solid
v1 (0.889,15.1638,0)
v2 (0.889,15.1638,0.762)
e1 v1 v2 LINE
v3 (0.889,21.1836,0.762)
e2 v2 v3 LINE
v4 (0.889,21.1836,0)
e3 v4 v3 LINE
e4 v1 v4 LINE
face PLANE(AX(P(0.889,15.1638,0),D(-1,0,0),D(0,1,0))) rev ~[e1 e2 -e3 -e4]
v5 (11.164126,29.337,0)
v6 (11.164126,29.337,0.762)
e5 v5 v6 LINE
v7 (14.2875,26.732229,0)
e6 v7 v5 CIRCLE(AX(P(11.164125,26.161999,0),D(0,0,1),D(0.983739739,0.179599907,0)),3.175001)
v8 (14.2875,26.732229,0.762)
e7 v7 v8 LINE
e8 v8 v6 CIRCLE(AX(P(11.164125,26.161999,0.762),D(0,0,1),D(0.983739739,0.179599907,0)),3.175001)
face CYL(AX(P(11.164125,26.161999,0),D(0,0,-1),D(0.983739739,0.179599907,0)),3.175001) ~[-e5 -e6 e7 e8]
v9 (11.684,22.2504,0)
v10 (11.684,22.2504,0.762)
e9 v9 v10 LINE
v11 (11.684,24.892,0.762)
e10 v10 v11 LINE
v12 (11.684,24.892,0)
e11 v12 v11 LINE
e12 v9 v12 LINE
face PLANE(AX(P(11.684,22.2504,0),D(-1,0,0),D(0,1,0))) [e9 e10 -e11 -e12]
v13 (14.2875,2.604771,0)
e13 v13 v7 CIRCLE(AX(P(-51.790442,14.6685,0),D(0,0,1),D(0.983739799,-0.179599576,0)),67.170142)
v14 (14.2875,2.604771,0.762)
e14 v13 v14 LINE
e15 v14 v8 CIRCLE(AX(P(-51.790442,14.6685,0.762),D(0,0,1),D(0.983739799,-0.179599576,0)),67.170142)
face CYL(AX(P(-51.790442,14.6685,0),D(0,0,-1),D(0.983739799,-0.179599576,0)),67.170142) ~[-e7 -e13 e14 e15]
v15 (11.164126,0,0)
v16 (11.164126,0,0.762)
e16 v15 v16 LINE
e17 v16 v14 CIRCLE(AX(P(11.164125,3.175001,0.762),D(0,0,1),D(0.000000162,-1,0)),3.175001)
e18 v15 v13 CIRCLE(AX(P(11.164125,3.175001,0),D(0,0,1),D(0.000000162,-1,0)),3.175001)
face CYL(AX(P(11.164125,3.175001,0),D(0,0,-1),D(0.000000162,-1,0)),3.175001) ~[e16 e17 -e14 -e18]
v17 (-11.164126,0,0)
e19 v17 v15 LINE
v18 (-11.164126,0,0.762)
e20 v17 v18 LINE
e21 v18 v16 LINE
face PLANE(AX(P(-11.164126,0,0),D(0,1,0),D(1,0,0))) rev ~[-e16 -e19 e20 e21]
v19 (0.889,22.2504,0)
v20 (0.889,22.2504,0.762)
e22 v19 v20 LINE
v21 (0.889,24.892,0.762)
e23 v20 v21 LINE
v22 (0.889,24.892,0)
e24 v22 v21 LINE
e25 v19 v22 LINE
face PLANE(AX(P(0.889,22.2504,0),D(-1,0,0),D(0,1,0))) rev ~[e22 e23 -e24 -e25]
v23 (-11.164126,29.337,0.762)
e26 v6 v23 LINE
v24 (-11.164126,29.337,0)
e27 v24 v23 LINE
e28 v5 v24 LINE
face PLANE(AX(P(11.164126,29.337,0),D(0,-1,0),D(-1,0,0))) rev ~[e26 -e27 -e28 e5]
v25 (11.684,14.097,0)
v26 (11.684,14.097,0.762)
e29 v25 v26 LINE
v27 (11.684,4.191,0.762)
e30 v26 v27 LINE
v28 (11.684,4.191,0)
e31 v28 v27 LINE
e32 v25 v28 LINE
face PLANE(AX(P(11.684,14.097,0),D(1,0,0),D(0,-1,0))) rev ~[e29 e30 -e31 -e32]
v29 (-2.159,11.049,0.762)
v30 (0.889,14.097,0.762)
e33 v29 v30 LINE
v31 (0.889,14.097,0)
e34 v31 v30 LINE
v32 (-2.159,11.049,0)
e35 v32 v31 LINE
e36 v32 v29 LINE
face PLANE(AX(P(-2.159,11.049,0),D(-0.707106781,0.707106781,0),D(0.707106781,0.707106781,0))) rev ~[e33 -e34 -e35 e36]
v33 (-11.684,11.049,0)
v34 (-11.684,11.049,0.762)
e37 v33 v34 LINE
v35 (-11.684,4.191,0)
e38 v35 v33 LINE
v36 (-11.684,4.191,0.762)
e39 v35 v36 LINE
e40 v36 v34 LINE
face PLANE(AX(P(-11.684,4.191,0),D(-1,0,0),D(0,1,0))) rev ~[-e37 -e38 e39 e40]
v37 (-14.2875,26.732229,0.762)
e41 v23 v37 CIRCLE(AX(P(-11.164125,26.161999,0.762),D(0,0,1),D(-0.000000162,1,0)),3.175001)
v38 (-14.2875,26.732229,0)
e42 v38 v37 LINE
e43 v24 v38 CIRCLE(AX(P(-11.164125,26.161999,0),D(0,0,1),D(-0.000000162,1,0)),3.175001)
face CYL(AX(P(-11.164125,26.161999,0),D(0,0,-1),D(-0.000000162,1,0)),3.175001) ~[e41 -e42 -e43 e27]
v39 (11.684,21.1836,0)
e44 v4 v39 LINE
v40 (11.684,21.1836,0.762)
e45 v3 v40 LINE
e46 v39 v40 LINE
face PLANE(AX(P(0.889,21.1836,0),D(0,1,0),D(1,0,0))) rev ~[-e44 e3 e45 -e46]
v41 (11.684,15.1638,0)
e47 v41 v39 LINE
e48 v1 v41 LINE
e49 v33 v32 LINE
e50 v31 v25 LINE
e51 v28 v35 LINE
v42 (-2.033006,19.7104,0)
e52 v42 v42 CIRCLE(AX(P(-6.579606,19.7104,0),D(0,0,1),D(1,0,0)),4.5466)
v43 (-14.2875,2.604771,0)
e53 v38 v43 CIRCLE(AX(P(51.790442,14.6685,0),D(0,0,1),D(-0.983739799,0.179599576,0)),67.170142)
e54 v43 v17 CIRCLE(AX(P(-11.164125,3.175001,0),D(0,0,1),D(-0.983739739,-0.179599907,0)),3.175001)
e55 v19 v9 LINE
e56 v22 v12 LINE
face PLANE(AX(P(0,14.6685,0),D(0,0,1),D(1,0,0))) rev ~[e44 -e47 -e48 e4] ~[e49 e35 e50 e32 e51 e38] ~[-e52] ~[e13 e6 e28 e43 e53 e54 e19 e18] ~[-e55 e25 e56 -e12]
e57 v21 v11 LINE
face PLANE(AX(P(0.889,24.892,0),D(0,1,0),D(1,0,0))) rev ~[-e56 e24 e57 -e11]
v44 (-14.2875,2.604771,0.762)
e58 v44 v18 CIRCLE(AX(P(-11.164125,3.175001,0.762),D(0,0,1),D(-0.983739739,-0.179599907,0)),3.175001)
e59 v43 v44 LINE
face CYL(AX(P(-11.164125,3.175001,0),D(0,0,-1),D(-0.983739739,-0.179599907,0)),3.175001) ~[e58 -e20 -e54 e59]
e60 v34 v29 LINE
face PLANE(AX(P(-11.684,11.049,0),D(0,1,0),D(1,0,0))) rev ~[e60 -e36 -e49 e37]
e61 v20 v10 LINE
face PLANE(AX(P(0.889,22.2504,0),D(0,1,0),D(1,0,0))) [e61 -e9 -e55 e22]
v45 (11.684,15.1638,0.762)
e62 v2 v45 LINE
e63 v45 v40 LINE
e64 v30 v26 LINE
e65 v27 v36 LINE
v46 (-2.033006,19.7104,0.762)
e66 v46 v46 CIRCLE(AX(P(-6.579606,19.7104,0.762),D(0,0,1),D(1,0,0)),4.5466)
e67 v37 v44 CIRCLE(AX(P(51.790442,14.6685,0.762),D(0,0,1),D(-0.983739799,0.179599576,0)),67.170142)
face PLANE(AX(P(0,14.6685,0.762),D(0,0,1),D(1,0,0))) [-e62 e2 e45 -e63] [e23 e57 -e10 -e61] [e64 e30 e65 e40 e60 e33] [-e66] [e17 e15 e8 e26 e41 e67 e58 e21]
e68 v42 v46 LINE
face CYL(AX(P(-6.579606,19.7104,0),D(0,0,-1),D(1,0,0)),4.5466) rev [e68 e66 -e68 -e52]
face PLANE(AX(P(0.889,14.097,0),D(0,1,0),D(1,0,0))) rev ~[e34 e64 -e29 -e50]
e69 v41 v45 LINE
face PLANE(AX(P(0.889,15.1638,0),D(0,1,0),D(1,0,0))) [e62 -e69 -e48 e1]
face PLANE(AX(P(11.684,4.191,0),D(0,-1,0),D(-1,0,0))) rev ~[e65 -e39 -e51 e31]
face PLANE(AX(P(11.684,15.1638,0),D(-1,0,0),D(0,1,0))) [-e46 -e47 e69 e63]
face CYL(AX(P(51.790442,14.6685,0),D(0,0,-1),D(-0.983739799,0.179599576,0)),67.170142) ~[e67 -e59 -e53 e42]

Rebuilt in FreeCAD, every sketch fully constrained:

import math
import FreeCAD as App
import Part
import Sketcher

V = App.Vector
Q = App.Units.Quantity


def add_polygon(sketch, points):
    """Adds a closed chain of lines whose ends are joined by coincident constraints."""
    first, n = sketch.GeometryCount, len(points)
    for a, b in zip(points, points[1:] + points[:1]):
        sketch.addGeometry(Part.LineSegment(App.Vector(*a, 0), App.Vector(*b, 0)), False)
    for i in range(n):
        sketch.addConstraint(Sketcher.Constraint("Coincident", first + i, 2, first + (i + 1) % n, 1))

doc = App.newDocument("Part")
body = doc.addObject("PartDesign::Body", "Body")

# Sketch on XY plane
sketch1 = body.newObject("Sketcher::SketchObject", "Sketch")
sketch1.AttachmentSupport = (doc.getObject("XY_Plane"), [""])
sketch1.MapMode = "FlatFace"
sketch1.addGeometry(Part.ArcOfCircle(Part.Circle(V(-11.2, 3.2, 0), V(0, 0, 1), 3.2), math.radians(-170), math.radians(-90)), False)  # 0
sketch1.addGeometry(Part.LineSegment(V(-11.2, 0, 0), V(11.2, 0, 0)), False)  # 1
sketch1.addGeometry(Part.ArcOfCircle(Part.Circle(V(11.2, 3.2, 0), V(0, 0, 1), 3.2), math.radians(-90), math.radians(-10)), False)  # 2
sketch1.addGeometry(Part.ArcOfCircle(Part.Circle(V(-51.8, 14.7, 0), V(0, 0, 1), 67.2), math.radians(-10), math.radians(10)), False)  # 3
sketch1.addGeometry(Part.ArcOfCircle(Part.Circle(V(11.2, 26.2, 0), V(0, 0, 1), 3.2), math.radians(10), math.radians(90)), False)  # 4
sketch1.addGeometry(Part.LineSegment(V(11.2, 29.3, 0), V(-11.2, 29.3, 0)), False)  # 5
sketch1.addGeometry(Part.ArcOfCircle(Part.Circle(V(-11.2, 26.2, 0), V(0, 0, 1), 3.2), math.radians(90), math.radians(170)), False)  # 6
sketch1.addGeometry(Part.ArcOfCircle(Part.Circle(V(51.8, 14.7, 0), V(0, 0, 1), 67.2), math.radians(170), math.radians(190)), False)  # 7
add_polygon(sketch1, [(-2.2, 11), (0.9, 14.1), (11.7, 14.1), (11.7, 4.2), (-11.7, 4.2), (-11.7, 11)])  # lines 8-13
sketch1.addGeometry(Part.Circle(V(-6.6, 19.7, 0), V(0, 0, 1), 4.5), False)  # 14
add_polygon(sketch1, [(11.7, 15.2), (0.9, 15.2), (0.9, 21.2), (11.7, 21.2)])  # lines 15-18
add_polygon(sketch1, [(11.7, 22.3), (0.9, 22.3), (0.9, 24.9), (11.7, 24.9)])  # lines 19-22
sketch1.addConstraint(Sketcher.Constraint("Tangent", 0, 2, 1, 1))
sketch1.addConstraint(Sketcher.Constraint("Tangent", 1, 2, 2, 1))
sketch1.addConstraint(Sketcher.Constraint("Tangent", 2, 2, 3, 1))
sketch1.addConstraint(Sketcher.Constraint("Tangent", 3, 2, 4, 1))
sketch1.addConstraint(Sketcher.Constraint("Tangent", 4, 2, 5, 1))
sketch1.addConstraint(Sketcher.Constraint("Tangent", 5, 2, 6, 1))
sketch1.addConstraint(Sketcher.Constraint("Tangent", 6, 2, 7, 1))
sketch1.addConstraint(Sketcher.Constraint("Tangent", 7, 2, 0, 1))
sketch1.addConstraint(Sketcher.Constraint("Horizontal", 1))
sketch1.addConstraint(Sketcher.Constraint("Horizontal", 5))
sketch1.addConstraint(Sketcher.Constraint("Horizontal", 9))
sketch1.addConstraint(Sketcher.Constraint("Vertical", 10))
sketch1.addConstraint(Sketcher.Constraint("Horizontal", 11))
sketch1.addConstraint(Sketcher.Constraint("Vertical", 12))
sketch1.addConstraint(Sketcher.Constraint("Horizontal", 13))
sketch1.addConstraint(Sketcher.Constraint("Horizontal", 15))
sketch1.addConstraint(Sketcher.Constraint("Vertical", 16))
sketch1.addConstraint(Sketcher.Constraint("Horizontal", 17))
sketch1.addConstraint(Sketcher.Constraint("Vertical", 18))
sketch1.addConstraint(Sketcher.Constraint("Horizontal", 19))
sketch1.addConstraint(Sketcher.Constraint("Vertical", 20))
sketch1.addConstraint(Sketcher.Constraint("Horizontal", 21))
sketch1.addConstraint(Sketcher.Constraint("Vertical", 22))
sketch1.addConstraint(Sketcher.Constraint("Equal", 0, 2))
sketch1.addConstraint(Sketcher.Constraint("Equal", 2, 4))
sketch1.addConstraint(Sketcher.Constraint("Equal", 4, 6))
sketch1.addConstraint(Sketcher.Constraint("Equal", 3, 7))
sketch1.addConstraint(Sketcher.Constraint("Symmetric", 0, 2, 1, 2, -1, 1))
sketch1.addConstraint(Sketcher.Constraint("Horizontal", 3, 3, 7, 3))
sketch1.addConstraint(Sketcher.Constraint("Vertical", 2, 3, 4, 3))
sketch1.addConstraint(Sketcher.Constraint("Vertical", 8, 2, 15, 2))
sketch1.addConstraint(Sketcher.Constraint("Vertical", 10, 2, 17, 2))
sketch1.addConstraint(Sketcher.Constraint("Vertical", 16, 2, 19, 2))
sketch1.addConstraint(Sketcher.Constraint("Vertical", 18, 2, 21, 2))
sketch1.addConstraint(Sketcher.Constraint("Diameter", 14, Q("0.358 in")))
sketch1.addConstraint(Sketcher.Constraint("Angle", 8, Q("45 deg")))
sketch1.addConstraint(Sketcher.Constraint("Radius", 0, Q("0.125 in")))
sketch1.addConstraint(Sketcher.Constraint("DistanceX", 11, 2, 11, 1, Q("0.92 in")))
sketch1.addConstraint(Sketcher.Constraint("DistanceY", 10, 2, 10, 1, Q("0.39 in")))
sketch1.addConstraint(Sketcher.Constraint("DistanceY", 12, 1, 12, 2, Q("0.27 in")))
sketch1.addConstraint(Sketcher.Constraint("DistanceY", 14, 3, 19, 2, Q("0.1 in")))
sketch1.addConstraint(Sketcher.Constraint("DistanceX", 9, 1, 9, 2, Q("0.425 in")))
sketch1.addConstraint(Sketcher.Constraint("DistanceY", 16, 1, 16, 2, Q("0.237 in")))
sketch1.addConstraint(Sketcher.Constraint("DistanceY", 20, 1, 20, 2, Q("0.104 in")))
sketch1.addConstraint(Sketcher.Constraint("DistanceY", -1, 1, 4, 3, Q("1.03 in")))
sketch1.addConstraint(Sketcher.Constraint("DistanceX", -1, 1, 9, 2, Q("0.46 in")))
sketch1.addConstraint(Sketcher.Constraint("DistanceY", -1, 1, 20, 2, Q("0.98 in")))
sketch1.addConstraint(Sketcher.Constraint("DistanceY", 2, 3, 8, 2, Q("0.43 in")))
sketch1.addConstraint(Sketcher.Constraint("DistanceX", -1, 1, 2, 2, Q("0.5625 in")))
sketch1.addConstraint(Sketcher.Constraint("DistanceY", -1, 1, 15, 2, Q("0.597 in")))
sketch1.addConstraint(Sketcher.Constraint("Radius", 3, 67.170142))
sketch1.addConstraint(Sketcher.Constraint("DistanceX", 6, 3, 14, 3, 4.584519))
pad1 = body.newObject("PartDesign::Pad", "Pad")
pad1.Profile = sketch1
pad1.Length = Q("0.03 in")

doc.recompute()
